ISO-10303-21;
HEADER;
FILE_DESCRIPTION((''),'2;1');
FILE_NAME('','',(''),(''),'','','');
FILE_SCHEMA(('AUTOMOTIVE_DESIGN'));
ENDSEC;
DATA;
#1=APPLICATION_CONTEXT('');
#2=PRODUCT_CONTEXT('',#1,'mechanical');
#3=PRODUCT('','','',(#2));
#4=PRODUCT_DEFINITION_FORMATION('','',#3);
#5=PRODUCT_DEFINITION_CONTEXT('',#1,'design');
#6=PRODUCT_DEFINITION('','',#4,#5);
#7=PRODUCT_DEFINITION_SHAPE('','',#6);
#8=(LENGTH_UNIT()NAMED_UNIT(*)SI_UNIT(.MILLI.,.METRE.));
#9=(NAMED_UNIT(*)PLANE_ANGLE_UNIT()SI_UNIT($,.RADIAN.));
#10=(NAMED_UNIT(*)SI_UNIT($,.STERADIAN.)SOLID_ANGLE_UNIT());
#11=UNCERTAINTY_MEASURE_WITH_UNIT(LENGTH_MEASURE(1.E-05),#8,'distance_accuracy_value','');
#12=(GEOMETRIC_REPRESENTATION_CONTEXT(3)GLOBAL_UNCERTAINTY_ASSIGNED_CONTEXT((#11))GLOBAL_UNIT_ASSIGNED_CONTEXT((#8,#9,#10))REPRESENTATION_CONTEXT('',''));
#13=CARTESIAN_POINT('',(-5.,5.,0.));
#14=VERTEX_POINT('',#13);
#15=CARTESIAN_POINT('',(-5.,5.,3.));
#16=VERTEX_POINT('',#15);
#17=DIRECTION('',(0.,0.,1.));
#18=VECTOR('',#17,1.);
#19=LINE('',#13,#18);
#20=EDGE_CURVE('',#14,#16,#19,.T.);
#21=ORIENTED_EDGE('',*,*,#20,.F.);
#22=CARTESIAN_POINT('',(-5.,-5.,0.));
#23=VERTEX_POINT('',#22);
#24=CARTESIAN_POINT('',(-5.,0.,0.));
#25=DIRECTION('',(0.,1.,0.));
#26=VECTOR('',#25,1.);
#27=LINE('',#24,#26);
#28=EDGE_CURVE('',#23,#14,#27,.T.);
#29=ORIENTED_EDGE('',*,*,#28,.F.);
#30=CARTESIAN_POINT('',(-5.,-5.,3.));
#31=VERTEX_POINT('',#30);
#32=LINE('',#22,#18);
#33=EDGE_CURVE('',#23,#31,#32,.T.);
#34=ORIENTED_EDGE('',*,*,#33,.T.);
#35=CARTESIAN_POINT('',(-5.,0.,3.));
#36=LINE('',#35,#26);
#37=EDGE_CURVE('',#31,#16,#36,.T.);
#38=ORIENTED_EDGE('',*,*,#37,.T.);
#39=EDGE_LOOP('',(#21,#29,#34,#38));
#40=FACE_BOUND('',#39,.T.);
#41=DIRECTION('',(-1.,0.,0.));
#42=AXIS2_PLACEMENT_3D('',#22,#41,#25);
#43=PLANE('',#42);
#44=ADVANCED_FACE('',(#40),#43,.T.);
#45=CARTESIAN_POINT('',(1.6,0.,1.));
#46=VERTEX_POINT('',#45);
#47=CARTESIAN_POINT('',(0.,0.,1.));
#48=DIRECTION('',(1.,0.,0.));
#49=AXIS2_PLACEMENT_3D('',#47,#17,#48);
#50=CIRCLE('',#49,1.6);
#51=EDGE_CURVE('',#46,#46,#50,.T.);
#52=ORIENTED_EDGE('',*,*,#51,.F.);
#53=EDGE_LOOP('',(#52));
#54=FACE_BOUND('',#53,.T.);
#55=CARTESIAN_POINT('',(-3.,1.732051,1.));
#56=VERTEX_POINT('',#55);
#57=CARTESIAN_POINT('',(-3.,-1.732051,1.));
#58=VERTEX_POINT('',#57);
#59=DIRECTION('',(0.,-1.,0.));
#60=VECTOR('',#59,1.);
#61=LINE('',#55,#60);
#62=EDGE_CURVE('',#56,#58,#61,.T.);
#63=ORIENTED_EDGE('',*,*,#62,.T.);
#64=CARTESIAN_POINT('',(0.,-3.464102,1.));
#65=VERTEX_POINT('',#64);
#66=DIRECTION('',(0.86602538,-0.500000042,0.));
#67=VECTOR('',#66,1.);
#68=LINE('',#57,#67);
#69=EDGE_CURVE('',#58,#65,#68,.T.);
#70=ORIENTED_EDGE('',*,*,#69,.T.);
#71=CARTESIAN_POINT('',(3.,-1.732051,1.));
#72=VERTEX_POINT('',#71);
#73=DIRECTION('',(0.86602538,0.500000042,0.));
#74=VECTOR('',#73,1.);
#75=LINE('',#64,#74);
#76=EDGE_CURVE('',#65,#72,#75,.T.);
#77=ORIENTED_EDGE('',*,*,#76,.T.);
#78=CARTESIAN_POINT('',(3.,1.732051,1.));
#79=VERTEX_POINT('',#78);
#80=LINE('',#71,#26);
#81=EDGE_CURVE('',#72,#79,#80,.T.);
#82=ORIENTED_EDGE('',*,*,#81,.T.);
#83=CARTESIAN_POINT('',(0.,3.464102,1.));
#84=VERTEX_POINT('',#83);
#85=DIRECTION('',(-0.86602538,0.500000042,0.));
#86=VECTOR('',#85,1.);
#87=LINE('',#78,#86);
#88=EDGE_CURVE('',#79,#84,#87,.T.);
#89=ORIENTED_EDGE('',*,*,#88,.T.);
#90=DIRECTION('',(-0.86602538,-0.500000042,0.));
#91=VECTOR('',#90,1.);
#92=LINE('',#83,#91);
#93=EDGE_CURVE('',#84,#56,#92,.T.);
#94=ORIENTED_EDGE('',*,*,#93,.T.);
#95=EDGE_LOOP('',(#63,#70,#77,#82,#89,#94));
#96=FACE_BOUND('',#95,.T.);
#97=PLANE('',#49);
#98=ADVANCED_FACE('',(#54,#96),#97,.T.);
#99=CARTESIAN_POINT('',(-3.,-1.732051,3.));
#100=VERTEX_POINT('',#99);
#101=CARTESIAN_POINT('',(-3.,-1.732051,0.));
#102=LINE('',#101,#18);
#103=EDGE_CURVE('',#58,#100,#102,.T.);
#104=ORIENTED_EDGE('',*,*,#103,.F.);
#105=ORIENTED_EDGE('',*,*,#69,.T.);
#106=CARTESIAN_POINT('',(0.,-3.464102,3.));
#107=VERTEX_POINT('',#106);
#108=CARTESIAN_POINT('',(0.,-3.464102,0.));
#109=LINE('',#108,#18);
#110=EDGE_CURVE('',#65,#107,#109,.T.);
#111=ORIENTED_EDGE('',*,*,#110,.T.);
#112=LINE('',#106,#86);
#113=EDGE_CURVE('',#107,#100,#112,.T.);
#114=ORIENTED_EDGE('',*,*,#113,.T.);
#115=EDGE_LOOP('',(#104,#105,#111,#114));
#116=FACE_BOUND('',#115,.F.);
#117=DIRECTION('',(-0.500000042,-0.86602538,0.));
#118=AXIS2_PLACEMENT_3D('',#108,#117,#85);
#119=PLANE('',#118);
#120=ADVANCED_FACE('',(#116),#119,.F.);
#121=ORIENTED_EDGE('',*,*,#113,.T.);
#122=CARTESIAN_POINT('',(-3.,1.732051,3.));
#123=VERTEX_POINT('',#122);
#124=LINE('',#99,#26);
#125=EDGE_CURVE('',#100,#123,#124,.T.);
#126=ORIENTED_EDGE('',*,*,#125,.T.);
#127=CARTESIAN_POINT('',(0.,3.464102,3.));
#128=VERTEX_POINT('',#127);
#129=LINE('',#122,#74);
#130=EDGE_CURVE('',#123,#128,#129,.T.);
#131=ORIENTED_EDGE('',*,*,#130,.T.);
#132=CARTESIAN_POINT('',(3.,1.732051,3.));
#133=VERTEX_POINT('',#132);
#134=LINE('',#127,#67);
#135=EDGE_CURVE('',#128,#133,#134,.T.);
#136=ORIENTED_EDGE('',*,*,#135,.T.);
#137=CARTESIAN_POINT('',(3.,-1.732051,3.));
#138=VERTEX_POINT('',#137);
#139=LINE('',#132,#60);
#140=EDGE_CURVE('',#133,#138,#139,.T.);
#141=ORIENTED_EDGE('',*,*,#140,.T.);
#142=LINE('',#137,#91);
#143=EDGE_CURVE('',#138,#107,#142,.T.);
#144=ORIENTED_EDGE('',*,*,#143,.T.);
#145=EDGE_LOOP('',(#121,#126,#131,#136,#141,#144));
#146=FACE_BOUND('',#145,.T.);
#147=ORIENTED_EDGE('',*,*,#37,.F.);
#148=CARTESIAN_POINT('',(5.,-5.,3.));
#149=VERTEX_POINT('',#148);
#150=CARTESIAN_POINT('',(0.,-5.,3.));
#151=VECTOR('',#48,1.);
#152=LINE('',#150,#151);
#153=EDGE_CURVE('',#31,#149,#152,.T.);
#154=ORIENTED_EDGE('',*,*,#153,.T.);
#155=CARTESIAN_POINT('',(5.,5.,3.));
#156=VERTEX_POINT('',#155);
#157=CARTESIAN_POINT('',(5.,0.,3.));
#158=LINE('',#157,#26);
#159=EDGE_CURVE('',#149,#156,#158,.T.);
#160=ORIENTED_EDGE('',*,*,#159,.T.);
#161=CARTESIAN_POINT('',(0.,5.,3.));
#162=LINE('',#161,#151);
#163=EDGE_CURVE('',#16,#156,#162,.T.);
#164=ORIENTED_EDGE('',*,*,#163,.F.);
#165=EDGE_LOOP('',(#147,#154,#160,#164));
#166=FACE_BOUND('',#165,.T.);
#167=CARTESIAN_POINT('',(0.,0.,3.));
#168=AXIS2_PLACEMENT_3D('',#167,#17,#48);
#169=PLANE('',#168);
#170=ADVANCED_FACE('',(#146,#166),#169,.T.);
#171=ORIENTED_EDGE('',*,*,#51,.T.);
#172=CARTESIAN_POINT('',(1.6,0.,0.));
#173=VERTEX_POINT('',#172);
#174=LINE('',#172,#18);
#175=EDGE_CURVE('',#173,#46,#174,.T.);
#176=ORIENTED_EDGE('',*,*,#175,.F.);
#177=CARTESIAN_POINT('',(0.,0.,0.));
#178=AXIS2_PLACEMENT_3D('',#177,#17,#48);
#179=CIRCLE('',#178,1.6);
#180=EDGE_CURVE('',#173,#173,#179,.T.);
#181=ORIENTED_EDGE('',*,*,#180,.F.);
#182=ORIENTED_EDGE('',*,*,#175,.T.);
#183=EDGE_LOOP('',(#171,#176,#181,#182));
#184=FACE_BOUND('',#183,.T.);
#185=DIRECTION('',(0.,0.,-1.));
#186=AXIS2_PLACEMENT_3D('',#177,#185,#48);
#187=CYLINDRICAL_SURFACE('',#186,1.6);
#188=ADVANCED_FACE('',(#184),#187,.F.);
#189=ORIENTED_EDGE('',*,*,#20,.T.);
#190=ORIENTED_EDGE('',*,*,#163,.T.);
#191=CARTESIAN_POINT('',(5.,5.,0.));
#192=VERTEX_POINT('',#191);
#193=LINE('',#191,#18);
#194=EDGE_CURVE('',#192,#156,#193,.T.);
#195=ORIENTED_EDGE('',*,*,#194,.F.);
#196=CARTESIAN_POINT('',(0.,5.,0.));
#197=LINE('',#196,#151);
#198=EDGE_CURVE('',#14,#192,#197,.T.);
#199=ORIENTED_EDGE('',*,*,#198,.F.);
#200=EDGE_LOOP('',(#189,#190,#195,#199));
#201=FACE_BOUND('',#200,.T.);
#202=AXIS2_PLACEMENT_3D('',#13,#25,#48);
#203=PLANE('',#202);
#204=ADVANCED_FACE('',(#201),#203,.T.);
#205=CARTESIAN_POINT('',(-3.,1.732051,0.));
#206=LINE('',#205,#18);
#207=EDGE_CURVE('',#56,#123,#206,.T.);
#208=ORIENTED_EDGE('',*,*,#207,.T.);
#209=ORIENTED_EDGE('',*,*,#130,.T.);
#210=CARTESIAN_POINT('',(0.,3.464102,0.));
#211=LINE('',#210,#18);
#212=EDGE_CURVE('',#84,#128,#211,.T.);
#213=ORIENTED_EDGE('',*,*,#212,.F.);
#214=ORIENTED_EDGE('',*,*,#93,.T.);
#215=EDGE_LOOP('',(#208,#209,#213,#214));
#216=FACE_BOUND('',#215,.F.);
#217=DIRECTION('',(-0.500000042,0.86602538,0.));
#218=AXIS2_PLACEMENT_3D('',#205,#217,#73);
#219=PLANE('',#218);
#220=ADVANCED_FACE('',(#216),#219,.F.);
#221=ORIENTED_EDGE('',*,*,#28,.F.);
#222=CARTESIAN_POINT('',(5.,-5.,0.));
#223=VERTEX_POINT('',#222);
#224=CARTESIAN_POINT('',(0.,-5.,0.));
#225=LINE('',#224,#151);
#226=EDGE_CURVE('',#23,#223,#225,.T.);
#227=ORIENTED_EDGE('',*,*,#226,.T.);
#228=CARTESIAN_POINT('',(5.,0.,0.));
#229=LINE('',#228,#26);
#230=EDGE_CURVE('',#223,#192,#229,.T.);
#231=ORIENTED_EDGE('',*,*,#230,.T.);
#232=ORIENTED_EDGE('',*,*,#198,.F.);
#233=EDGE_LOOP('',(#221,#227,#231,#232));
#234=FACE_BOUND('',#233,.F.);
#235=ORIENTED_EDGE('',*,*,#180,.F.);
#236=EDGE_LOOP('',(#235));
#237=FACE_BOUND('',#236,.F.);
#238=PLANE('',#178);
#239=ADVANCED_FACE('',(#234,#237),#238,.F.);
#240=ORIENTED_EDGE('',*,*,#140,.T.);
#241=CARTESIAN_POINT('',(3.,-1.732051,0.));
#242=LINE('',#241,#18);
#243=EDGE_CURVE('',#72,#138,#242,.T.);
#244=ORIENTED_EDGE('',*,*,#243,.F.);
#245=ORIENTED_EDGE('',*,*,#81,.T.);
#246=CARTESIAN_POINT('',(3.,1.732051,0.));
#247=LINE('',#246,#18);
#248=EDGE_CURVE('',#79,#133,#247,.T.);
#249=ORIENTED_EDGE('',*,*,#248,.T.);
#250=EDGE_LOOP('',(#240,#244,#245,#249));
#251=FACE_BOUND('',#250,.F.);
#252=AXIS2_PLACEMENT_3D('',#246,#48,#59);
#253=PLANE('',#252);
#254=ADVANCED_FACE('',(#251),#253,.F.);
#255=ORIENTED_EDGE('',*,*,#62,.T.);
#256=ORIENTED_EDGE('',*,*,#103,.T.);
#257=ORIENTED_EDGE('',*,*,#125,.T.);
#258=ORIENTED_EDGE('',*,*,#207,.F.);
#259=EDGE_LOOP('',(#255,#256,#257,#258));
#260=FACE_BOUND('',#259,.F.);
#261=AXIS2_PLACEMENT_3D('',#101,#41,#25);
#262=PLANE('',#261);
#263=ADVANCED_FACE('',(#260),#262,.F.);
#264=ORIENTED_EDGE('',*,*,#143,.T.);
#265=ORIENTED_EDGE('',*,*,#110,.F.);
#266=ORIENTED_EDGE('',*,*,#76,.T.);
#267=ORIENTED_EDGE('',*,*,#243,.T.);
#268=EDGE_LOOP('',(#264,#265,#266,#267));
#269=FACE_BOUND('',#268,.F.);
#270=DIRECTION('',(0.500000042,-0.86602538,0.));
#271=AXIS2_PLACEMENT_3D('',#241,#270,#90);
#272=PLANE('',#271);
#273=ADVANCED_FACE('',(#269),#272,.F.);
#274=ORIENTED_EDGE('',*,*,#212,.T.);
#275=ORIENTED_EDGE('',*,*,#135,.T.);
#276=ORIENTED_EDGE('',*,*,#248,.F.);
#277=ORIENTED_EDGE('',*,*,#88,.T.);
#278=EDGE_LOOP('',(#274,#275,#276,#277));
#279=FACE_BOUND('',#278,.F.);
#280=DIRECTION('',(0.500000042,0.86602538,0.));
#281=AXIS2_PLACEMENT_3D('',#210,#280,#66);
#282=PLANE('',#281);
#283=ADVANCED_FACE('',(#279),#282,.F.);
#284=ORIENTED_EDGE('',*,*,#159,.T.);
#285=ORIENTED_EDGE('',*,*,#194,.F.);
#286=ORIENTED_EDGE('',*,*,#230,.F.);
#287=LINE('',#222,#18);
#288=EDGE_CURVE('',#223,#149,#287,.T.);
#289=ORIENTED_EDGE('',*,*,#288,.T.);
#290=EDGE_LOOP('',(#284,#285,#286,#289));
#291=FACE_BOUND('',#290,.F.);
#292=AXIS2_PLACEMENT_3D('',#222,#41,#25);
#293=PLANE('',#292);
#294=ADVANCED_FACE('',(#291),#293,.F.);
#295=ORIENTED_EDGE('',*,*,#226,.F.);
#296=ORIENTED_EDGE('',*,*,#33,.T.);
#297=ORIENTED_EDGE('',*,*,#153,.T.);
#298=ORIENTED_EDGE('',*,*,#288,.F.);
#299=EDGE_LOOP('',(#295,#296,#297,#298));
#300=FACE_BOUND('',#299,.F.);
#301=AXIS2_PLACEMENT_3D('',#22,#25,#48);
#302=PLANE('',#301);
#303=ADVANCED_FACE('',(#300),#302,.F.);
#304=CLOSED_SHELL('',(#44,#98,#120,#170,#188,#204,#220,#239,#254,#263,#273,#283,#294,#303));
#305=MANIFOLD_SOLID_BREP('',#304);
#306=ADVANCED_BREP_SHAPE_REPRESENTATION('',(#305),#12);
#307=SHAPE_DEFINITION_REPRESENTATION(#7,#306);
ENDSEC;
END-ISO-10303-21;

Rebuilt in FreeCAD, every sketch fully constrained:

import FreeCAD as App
import Part
import Sketcher

V = App.Vector
Q = App.Units.Quantity


def add_polygon(sketch, points):
    """Adds a closed chain of lines whose ends are joined by coincident constraints."""
    first, n = sketch.GeometryCount, len(points)
    for a, b in zip(points, points[1:] + points[:1]):
        sketch.addGeometry(Part.LineSegment(App.Vector(*a, 0), App.Vector(*b, 0)), False)
    for i in range(n):
        sketch.addConstraint(Sketcher.Constraint("Coincident", first + i, 2, first + (i + 1) % n, 1))

doc = App.newDocument("Part")
body = doc.addObject("PartDesign::Body", "Body")

# Sketch on XY plane
sketch1 = body.newObject("Sketcher::SketchObject", "Sketch")
sketch1.AttachmentSupport = (doc.getObject("XY_Plane"), [""])
sketch1.MapMode = "FlatFace"
add_polygon(sketch1, [(-5, 5), (-5, -5), (5, -5), (5, 5)])  # lines 0-3
add_polygon(sketch1, [(-3, 1.732051), (0, 3.464102), (3, 1.732051), (3, -1.732051), (0, -3.464102), (-3, -1.732051)])  # lines 4-9
sketch1.addConstraint([
    Sketcher.Constraint("Vertical", 0),
    Sketcher.Constraint("Horizontal", 1),
    Sketcher.Constraint("Vertical", 2),
    Sketcher.Constraint("Horizontal", 3),
    Sketcher.Constraint("Vertical", 6),
    Sketcher.Constraint("Vertical", 9),
    Sketcher.Constraint("Symmetric", 0, 2, 2, 2, -1, 1),
    Sketcher.Constraint("Symmetric", 4, 2, 7, 2, -1, 1),
    Sketcher.Constraint("Symmetric", 5, 2, 8, 2, -1, 1),
    Sketcher.Constraint("PointOnObject", 4, 2, -2),
    Sketcher.Constraint("Parallel", 4, 7),
    Sketcher.Constraint("Horizontal", 6, 2, 8, 2),
    Sketcher.Constraint("Equal", 3, 0),
    Sketcher.Constraint("DistanceX", 1, 1, 1, 2, Q("10 mm")),
    Sketcher.Constraint("Angle", 4, Q("30.000003 deg")),
    Sketcher.Constraint("DistanceX", -1, 1, 5, 2, Q("3 mm")),
    Sketcher.Constraint("DistanceY", 6, 2, 6, 1, Q("3.464102 mm")),
])
pad1 = body.newObject("PartDesign::Pad", "Pad")
pad1.Profile = sketch1
pad1.Length = 3

# Sketch on XY plane
sketch2 = body.newObject("Sketcher::SketchObject", "Sketch001")
sketch2.AttachmentSupport = (doc.getObject("XY_Plane"), [""])
sketch2.MapMode = "FlatFace"
add_polygon(sketch2, [(3, -1.732051), (3, 1.732051), (0, 3.464102), (-3, 1.732051), (-3, -1.732051), (0, -3.464102)])  # lines 0-5
sketch2.addGeometry(Part.Circle(V(0, 0, 0), V(0, 0, 1), 1.6), False)  # 6
sketch2.addConstraint([
    Sketcher.Constraint("Vertical", 0),
    Sketcher.Constraint("Vertical", 3),
    Sketcher.Constraint("Coincident", 6, 3, -1, 1),
    Sketcher.Constraint("Symmetric", 0, 2, 3, 2, -1, 1),
    Sketcher.Constraint("Symmetric", 1, 2, 4, 2, -1, 1),
    Sketcher.Constraint("PointOnObject", 1, 2, -2),
    Sketcher.Constraint("Parallel", 2, 5),
    Sketcher.Constraint("Horizontal", 0, 2, 2, 2),
    Sketcher.Constraint("Diameter", 6, Q("3.2 mm")),
    Sketcher.Constraint("Angle", 1, Q("149.999997 deg")),
    Sketcher.Constraint("DistanceX", -1, 1, 0, 2, Q("3 mm")),
    Sketcher.Constraint("DistanceY", 0, 1, 0, 2, Q("3.464102 mm")),
])
pad2 = body.newObject("PartDesign::Pad", "Pad001")
pad2.Profile = sketch2
pad2.Length = 1

doc.recompute()
